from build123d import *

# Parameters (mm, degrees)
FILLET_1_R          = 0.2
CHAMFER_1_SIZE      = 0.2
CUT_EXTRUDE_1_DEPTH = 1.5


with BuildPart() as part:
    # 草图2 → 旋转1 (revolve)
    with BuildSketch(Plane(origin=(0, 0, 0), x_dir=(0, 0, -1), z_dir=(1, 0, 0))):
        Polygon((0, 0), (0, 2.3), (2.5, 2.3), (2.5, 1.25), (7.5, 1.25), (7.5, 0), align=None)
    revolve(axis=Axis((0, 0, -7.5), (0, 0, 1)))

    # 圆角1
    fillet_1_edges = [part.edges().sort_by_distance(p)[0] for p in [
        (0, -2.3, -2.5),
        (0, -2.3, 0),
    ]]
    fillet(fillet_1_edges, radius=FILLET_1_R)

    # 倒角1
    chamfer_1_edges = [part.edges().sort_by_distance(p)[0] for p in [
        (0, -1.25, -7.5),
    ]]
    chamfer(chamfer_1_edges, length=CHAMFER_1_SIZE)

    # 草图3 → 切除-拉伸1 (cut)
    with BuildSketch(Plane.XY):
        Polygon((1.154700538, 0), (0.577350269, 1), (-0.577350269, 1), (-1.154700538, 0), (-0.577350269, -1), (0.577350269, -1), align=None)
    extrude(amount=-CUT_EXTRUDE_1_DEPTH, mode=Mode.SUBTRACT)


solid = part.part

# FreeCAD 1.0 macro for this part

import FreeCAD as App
import Part
import Sketcher

V = App.Vector
Q = App.Units.Quantity


def edges_at(feature, points):
    """Names of the edges that pass closest to the given points."""
    edges = feature.Shape.Edges
    near = lambda p: min(range(len(edges)), key=lambda i: edges[i].distToShape(Part.Vertex(*p))[0])
    return sorted({f"Edge{near(p) + 1}" for p in points})

doc = App.newDocument("Part")
body = doc.addObject("PartDesign::Body", "Body")

# Sketch on YZ plane
sketch1 = body.newObject("Sketcher::SketchObject", "Sketch")
sketch1.AttachmentSupport = (doc.getObject("YZ_Plane"), [""])
sketch1.MapMode = "FlatFace"
sketch1.addGeometry(Part.LineSegment(V(2.3, 0, 0), V(0, 0, 0)), False)
sketch1.addGeometry(Part.LineSegment(V(0, 0, 0), V(0, -7.5, 0)), False)
sketch1.addGeometry(Part.LineSegment(V(0, -7.5, 0), V(1.2, -7.5, 0)), False)
sketch1.addGeometry(Part.LineSegment(V(1.2, -7.5, 0), V(1.2, -2.5, 0)), False)
sketch1.addGeometry(Part.LineSegment(V(1.2, -2.5, 0), V(2.3, -2.5, 0)), False)
sketch1.addGeometry(Part.LineSegment(V(2.3, -2.5, 0), V(2.3, 0, 0)), False)
sketch1.addConstraint(Sketcher.Constraint("Coincident", 0, 2, 1, 1))
sketch1.addConstraint(Sketcher.Constraint("Coincident", 1, 2, 2, 1))
sketch1.addConstraint(Sketcher.Constraint("Coincident", 2, 2, 3, 1))
sketch1.addConstraint(Sketcher.Constraint("Coincident", 3, 2, 4, 1))
sketch1.addConstraint(Sketcher.Constraint("Coincident", 4, 2, 5, 1))
sketch1.addConstraint(Sketcher.Constraint("Coincident", 5, 2, 0, 1))
sketch1.addConstraint(Sketcher.Constraint("Horizontal", 0))
sketch1.addConstraint(Sketcher.Constraint("Vertical", 1))
sketch1.addConstraint(Sketcher.Constraint("Horizontal", 2))
sketch1.addConstraint(Sketcher.Constraint("Vertical", 3))
sketch1.addConstraint(Sketcher.Constraint("Horizontal", 4))
sketch1.addConstraint(Sketcher.Constraint("Vertical", 5))
sketch1.addConstraint(Sketcher.Constraint("Coincident", 0, 2, -1, 1))
sketch1.addConstraint(Sketcher.Constraint("DistanceY", 3, 1, 3, 2, Q("5 mm")))
sketch1.addConstraint(Sketcher.Constraint("DistanceX", 0, 2, 0, 1, Q("2.3 mm")))
sketch1.addConstraint(Sketcher.Constraint("DistanceY", 1, 2, 1, 1, Q("7.5 mm")))
sketch1.addConstraint(Sketcher.Constraint("DistanceX", 2, 1, 2, 2, Q("1.25 mm")))
revolution = body.newObject("PartDesign::Revolution", "Revolution")
revolution.Profile = sketch1
revolution.ReferenceAxis = (sketch1, ["V_Axis"])
revolution.Angle = 360
doc.recompute()

fillet = body.newObject("PartDesign::Fillet", "Fillet")
fillet.Base = (revolution, edges_at(revolution, [(0, -2.3, -2.5), (0, -2.3, 0)]))
fillet.Radius = 0.2
doc.recompute()

chamfer = body.newObject("PartDesign::Chamfer", "Chamfer")
chamfer.Base = (fillet, edges_at(fillet, [(0, -1.25, -7.5)]))
chamfer.Size = 0.2

# Sketch on XY plane
sketch2 = body.newObject("Sketcher::SketchObject", "Sketch001")
sketch2.AttachmentSupport = (doc.getObject("XY_Plane"), [""])
sketch2.MapMode = "FlatFace"
sketch2.addGeometry(Part.LineSegment(V(1.2, 0, 0), V(0.6, 1, 0)), False)
sketch2.addGeometry(Part.LineSegment(V(0.6, 1, 0), V(-0.6, 1, 0)), False)
sketch2.addGeometry(Part.LineSegment(V(-0.6, 1, 0), V(-1.2, 0, 0)), False)
sketch2.addGeometry(Part.LineSegment(V(-1.2, 0, 0), V(-0.6, -1, 0)), False)
sketch2.addGeometry(Part.LineSegment(V(-0.6, -1, 0), V(0.6, -1, 0)), False)
sketch2.addGeometry(Part.LineSegment(V(0.6, -1, 0), V(1.2, 0, 0)), False)
sketch2.addConstraint(Sketcher.Constraint("Coincident", 0, 2, 1, 1))
sketch2.addConstraint(Sketcher.Constraint("Coincident", 1, 2, 2, 1))
sketch2.addConstraint(Sketcher.Constraint("Coincident", 2, 2, 3, 1))
sketch2.addConstraint(Sketcher.Constraint("Coincident", 3, 2, 4, 1))
sketch2.addConstraint(Sketcher.Constraint("Coincident", 4, 2, 5, 1))
sketch2.addConstraint(Sketcher.Constraint("Coincident", 5, 2, 0, 1))
sketch2.addConstraint(Sketcher.Constraint("Horizontal", 1))
sketch2.addConstraint(Sketcher.Constraint("Horizontal", 4))
sketch2.addConstraint(Sketcher.Constraint("Symmetric", 0, 2, 3, 2, -1, 1))
sketch2.addConstraint(Sketcher.Constraint("Symmetric", 2, 2, 5, 2, -1, 1))
sketch2.addConstraint(Sketcher.Constraint("PointOnObject", 2, 2, -1))
sketch2.addConstraint(Sketcher.Constraint("Parallel", 2, 5))
sketch2.addConstraint(Sketcher.Constraint("Vertical", 1, 2, 3, 2))
sketch2.addConstraint(Sketcher.Constraint("Angle", 0, Q("120 deg")))
sketch2.addConstraint(Sketcher.Constraint("DistanceY", -1, 1, 0, 2, Q("1 mm")))
sketch2.addConstraint(Sketcher.Constraint("DistanceX", 1, 2, 1, 1, Q("1.154701 mm")))
pocket1 = body.newObject("PartDesign::Pocket", "Pocket")
pocket1.Profile = sketch2
pocket1.Length = 1.5

doc.recompute()
